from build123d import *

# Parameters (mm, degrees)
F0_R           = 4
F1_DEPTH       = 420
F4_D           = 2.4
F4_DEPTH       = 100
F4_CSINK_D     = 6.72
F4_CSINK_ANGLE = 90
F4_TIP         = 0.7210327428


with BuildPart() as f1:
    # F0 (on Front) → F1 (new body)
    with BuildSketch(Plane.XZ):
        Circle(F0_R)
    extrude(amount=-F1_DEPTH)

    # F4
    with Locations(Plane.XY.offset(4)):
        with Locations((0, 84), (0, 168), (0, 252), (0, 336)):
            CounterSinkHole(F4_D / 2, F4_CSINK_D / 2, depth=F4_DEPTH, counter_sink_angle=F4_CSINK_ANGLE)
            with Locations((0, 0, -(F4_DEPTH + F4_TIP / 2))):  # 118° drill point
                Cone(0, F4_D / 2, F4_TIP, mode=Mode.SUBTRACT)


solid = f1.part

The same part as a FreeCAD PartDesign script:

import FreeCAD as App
import Part
import Sketcher

V = App.Vector

doc = App.newDocument("Part")
body = doc.addObject("PartDesign::Body", "Body")

# Sketch on XZ plane
sketch1 = body.newObject("Sketcher::SketchObject", "Sketch")
sketch1.AttachmentSupport = (doc.getObject("XZ_Plane"), [""])
sketch1.MapMode = "FlatFace"
sketch1.addGeometry(Part.Circle(V(0, 0, 0), V(0, 0, 1), 4), False)
sketch1.addConstraint([
    Sketcher.Constraint("Coincident", 0, 3, -1, 1),
    Sketcher.Constraint("Diameter", 0, 8.0),
])
pad1 = body.newObject("PartDesign::Pad", "Pad")
pad1.Profile = sketch1
pad1.Length = 420
pad1.Reversed = True

# Sketch on XY plane
sketch2 = body.newObject("Sketcher::SketchObject", "Sketch001")
sketch2.AttachmentSupport = (doc.getObject("XY_Plane"), [""])
sketch2.MapMode = "FlatFace"
sketch2.AttachmentOffset = App.Placement(V(0, 0, 4), App.Rotation())
sketch2.addGeometry([
    Part.Circle(V(0, 84, 0), V(0, 0, 1), 1.2),
    Part.Circle(V(0, 168, 0), V(0, 0, 1), 1.2),
    Part.Circle(V(0, 252, 0), V(0, 0, 1), 1.2),
    Part.Circle(V(0, 336, 0), V(0, 0, 1), 1.2),
], False)
sketch2.addConstraint([
    Sketcher.Constraint("Equal", 0, 1),
    Sketcher.Constraint("Equal", 1, 2),
    Sketcher.Constraint("Equal", 2, 3),
    Sketcher.Constraint("PointOnObject", 0, 3, -2),
    Sketcher.Constraint("PointOnObject", 1, 3, -2),
    Sketcher.Constraint("PointOnObject", 2, 3, -2),
    Sketcher.Constraint("PointOnObject", 3, 3, -2),
    Sketcher.Constraint("Diameter", 0, 2.4),
    Sketcher.Constraint("DistanceY", -1, 1, 0, 3, 84.0),
    Sketcher.Constraint("DistanceY", -1, 1, 1, 3, 168.0),
    Sketcher.Constraint("DistanceY", -1, 1, 2, 3, 252.0),
    Sketcher.Constraint("DistanceY", -1, 1, 3, 3, 336.0),
])
doc.recompute()
hole = body.newObject("PartDesign::Hole", "Hole")
hole.Profile = sketch2
hole.ThreadType = "None"
hole.Diameter = 2.4
hole.DepthType = "Dimension"
hole.Depth = 100
hole.DrillPoint = "Angled"
hole.DrillPointAngle = 118
hole.HoleCutType = "Countersink"
hole.HoleCutDiameter = 6.72
hole.HoleCutCountersinkAngle = 90

doc.recompute()
